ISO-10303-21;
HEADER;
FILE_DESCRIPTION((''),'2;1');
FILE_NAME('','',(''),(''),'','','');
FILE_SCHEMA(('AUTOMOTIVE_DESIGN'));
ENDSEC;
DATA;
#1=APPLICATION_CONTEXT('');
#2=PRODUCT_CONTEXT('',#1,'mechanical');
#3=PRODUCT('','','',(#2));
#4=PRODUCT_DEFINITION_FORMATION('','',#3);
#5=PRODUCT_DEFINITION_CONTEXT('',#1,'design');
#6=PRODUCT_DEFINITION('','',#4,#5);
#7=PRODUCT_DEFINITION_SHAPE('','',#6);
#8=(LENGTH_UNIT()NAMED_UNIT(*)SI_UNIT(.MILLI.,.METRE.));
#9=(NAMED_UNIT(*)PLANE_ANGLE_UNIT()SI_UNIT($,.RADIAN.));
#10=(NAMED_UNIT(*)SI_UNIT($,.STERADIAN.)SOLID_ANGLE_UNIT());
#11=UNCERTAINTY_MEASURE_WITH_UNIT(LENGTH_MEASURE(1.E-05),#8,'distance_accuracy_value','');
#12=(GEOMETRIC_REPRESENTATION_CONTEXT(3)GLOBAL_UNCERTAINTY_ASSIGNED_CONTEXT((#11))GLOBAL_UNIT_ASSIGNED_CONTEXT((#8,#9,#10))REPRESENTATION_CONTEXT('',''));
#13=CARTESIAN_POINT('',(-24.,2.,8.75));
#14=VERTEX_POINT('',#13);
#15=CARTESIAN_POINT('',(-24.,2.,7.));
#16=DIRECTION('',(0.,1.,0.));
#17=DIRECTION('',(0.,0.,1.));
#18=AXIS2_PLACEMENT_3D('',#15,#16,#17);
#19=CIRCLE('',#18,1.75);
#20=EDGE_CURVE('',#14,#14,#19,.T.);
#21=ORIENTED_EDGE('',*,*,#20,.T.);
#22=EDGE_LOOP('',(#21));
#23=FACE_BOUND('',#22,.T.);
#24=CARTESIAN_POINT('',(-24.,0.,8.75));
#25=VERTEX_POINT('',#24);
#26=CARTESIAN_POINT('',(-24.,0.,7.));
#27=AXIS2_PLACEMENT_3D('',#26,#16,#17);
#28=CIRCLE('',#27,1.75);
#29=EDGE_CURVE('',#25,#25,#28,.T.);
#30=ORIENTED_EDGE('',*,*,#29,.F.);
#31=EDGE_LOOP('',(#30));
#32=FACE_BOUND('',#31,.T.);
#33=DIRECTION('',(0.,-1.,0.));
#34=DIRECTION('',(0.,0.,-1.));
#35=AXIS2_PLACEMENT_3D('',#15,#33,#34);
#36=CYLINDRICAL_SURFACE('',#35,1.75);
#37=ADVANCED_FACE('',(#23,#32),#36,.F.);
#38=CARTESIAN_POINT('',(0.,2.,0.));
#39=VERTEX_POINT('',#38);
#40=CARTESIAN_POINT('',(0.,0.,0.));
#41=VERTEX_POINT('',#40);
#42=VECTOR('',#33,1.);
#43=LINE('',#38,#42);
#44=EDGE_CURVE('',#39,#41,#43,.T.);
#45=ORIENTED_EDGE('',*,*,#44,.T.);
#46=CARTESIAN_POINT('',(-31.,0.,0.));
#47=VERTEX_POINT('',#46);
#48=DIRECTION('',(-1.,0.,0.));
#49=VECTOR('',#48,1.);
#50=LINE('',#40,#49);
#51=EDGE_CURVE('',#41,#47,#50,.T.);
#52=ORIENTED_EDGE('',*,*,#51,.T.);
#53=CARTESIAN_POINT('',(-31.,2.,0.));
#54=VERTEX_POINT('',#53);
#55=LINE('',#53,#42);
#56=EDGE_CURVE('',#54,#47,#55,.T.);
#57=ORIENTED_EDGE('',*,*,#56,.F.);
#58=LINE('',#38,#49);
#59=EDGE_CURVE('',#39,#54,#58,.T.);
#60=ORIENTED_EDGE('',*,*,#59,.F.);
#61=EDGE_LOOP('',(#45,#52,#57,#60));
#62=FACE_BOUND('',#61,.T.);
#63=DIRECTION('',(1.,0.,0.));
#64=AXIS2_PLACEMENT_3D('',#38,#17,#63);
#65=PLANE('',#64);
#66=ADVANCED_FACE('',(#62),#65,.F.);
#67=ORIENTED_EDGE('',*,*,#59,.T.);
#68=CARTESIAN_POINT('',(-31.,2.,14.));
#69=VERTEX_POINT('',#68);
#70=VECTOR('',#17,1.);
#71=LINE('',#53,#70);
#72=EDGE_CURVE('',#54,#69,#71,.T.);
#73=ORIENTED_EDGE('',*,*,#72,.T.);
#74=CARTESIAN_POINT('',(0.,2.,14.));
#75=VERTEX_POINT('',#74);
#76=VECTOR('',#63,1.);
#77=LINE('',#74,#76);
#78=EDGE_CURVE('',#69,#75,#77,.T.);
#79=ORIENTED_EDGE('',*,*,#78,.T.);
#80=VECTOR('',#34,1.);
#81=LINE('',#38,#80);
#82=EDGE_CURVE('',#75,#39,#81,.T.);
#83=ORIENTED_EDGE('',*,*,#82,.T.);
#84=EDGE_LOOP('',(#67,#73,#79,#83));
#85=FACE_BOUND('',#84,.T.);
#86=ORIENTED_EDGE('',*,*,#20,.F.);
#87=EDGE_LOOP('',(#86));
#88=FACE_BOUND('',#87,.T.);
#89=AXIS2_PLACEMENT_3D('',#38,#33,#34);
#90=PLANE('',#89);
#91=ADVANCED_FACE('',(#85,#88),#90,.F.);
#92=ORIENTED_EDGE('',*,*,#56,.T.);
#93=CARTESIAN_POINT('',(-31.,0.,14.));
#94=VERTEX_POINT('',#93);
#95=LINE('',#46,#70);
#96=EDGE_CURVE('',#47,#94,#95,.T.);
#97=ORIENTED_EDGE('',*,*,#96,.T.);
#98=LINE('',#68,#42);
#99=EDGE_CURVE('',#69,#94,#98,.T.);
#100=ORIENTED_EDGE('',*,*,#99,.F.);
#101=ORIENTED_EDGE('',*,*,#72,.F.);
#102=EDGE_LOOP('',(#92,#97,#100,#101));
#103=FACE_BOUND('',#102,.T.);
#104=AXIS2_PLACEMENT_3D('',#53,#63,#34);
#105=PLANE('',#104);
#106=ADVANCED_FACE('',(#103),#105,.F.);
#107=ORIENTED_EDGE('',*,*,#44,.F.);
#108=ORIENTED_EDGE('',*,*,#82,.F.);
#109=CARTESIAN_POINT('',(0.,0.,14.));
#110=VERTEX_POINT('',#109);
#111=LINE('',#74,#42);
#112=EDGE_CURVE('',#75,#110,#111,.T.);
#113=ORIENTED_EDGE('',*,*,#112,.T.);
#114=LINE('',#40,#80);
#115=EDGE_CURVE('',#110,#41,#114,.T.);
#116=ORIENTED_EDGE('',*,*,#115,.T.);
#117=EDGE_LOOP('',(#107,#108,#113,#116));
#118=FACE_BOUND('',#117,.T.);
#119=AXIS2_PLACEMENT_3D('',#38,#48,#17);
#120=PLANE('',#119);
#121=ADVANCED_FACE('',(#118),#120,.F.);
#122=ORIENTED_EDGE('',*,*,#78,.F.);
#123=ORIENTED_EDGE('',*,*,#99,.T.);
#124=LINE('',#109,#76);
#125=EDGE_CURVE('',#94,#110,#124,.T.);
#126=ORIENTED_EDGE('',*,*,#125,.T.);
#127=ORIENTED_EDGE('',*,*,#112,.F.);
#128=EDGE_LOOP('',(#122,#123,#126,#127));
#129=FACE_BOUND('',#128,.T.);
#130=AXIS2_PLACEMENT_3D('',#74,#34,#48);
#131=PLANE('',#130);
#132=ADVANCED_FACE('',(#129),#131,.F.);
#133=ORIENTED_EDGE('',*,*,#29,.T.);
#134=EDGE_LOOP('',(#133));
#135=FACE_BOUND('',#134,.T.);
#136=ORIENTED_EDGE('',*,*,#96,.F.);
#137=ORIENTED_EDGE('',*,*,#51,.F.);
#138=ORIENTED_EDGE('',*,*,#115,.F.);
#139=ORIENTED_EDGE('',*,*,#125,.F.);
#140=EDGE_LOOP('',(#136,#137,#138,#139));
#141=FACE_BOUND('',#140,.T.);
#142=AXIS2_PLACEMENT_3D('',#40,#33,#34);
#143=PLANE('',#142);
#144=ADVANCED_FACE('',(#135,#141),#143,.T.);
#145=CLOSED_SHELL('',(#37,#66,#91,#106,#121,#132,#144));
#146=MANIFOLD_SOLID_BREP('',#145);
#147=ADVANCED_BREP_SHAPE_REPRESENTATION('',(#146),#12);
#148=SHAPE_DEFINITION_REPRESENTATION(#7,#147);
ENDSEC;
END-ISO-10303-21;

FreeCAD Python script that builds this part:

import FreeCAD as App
import Part
import Sketcher

doc = App.newDocument("Part")
body = doc.addObject("PartDesign::Body", "Body")

# Sketch on XZ plane
sketch1 = body.newObject("Sketcher::SketchObject", "Sketch")
sketch1.AttachmentSupport = (doc.getObject("XZ_Plane"), [""])
sketch1.MapMode = "FlatFace"
sketch1.addGeometry(Part.LineSegment(App.Vector(-31, 0, 0), App.Vector(-31, 14, 0)), False)
sketch1.addGeometry(Part.LineSegment(App.Vector(-31, 14, 0), App.Vector(0, 14, 0)), False)
sketch1.addGeometry(Part.LineSegment(App.Vector(0, 14, 0), App.Vector(0, 0, 0)), False)
sketch1.addGeometry(Part.LineSegment(App.Vector(0, 0, 0), App.Vector(-31, 0, 0)), False)
sketch1.addGeometry(Part.Circle(App.Vector(-24, 7, 0), App.Vector(0, 0, 1), 1.8), False)
sketch1.addConstraint(Sketcher.Constraint("Coincident", 0, 2, 1, 1))
sketch1.addConstraint(Sketcher.Constraint("Coincident", 1, 2, 2, 1))
sketch1.addConstraint(Sketcher.Constraint("Coincident", 2, 2, 3, 1))
sketch1.addConstraint(Sketcher.Constraint("Coincident", 3, 2, 0, 1))
sketch1.addConstraint(Sketcher.Constraint("Vertical", 0))
sketch1.addConstraint(Sketcher.Constraint("Horizontal", 1))
sketch1.addConstraint(Sketcher.Constraint("Vertical", 2))
sketch1.addConstraint(Sketcher.Constraint("Horizontal", 3))
sketch1.addConstraint(Sketcher.Constraint("Coincident", 2, 2, -1, 1))
sketch1.addConstraint(Sketcher.Constraint("Diameter", 4, 3.5))
sketch1.addConstraint(Sketcher.Constraint("DistanceX", 1, 1, 1, 2, 31.0))
sketch1.addConstraint(Sketcher.Constraint("DistanceY", 0, 1, 0, 2, 14.0))
sketch1.addConstraint(Sketcher.Constraint("DistanceX", 4, 3, -1, 1, 24.0))
sketch1.addConstraint(Sketcher.Constraint("DistanceY", -1, 1, 4, 3, 7.0))
pad1 = body.newObject("PartDesign::Pad", "Pad")
pad1.Profile = sketch1
pad1.Length = 2
pad1.Reversed = True

doc.recompute()
